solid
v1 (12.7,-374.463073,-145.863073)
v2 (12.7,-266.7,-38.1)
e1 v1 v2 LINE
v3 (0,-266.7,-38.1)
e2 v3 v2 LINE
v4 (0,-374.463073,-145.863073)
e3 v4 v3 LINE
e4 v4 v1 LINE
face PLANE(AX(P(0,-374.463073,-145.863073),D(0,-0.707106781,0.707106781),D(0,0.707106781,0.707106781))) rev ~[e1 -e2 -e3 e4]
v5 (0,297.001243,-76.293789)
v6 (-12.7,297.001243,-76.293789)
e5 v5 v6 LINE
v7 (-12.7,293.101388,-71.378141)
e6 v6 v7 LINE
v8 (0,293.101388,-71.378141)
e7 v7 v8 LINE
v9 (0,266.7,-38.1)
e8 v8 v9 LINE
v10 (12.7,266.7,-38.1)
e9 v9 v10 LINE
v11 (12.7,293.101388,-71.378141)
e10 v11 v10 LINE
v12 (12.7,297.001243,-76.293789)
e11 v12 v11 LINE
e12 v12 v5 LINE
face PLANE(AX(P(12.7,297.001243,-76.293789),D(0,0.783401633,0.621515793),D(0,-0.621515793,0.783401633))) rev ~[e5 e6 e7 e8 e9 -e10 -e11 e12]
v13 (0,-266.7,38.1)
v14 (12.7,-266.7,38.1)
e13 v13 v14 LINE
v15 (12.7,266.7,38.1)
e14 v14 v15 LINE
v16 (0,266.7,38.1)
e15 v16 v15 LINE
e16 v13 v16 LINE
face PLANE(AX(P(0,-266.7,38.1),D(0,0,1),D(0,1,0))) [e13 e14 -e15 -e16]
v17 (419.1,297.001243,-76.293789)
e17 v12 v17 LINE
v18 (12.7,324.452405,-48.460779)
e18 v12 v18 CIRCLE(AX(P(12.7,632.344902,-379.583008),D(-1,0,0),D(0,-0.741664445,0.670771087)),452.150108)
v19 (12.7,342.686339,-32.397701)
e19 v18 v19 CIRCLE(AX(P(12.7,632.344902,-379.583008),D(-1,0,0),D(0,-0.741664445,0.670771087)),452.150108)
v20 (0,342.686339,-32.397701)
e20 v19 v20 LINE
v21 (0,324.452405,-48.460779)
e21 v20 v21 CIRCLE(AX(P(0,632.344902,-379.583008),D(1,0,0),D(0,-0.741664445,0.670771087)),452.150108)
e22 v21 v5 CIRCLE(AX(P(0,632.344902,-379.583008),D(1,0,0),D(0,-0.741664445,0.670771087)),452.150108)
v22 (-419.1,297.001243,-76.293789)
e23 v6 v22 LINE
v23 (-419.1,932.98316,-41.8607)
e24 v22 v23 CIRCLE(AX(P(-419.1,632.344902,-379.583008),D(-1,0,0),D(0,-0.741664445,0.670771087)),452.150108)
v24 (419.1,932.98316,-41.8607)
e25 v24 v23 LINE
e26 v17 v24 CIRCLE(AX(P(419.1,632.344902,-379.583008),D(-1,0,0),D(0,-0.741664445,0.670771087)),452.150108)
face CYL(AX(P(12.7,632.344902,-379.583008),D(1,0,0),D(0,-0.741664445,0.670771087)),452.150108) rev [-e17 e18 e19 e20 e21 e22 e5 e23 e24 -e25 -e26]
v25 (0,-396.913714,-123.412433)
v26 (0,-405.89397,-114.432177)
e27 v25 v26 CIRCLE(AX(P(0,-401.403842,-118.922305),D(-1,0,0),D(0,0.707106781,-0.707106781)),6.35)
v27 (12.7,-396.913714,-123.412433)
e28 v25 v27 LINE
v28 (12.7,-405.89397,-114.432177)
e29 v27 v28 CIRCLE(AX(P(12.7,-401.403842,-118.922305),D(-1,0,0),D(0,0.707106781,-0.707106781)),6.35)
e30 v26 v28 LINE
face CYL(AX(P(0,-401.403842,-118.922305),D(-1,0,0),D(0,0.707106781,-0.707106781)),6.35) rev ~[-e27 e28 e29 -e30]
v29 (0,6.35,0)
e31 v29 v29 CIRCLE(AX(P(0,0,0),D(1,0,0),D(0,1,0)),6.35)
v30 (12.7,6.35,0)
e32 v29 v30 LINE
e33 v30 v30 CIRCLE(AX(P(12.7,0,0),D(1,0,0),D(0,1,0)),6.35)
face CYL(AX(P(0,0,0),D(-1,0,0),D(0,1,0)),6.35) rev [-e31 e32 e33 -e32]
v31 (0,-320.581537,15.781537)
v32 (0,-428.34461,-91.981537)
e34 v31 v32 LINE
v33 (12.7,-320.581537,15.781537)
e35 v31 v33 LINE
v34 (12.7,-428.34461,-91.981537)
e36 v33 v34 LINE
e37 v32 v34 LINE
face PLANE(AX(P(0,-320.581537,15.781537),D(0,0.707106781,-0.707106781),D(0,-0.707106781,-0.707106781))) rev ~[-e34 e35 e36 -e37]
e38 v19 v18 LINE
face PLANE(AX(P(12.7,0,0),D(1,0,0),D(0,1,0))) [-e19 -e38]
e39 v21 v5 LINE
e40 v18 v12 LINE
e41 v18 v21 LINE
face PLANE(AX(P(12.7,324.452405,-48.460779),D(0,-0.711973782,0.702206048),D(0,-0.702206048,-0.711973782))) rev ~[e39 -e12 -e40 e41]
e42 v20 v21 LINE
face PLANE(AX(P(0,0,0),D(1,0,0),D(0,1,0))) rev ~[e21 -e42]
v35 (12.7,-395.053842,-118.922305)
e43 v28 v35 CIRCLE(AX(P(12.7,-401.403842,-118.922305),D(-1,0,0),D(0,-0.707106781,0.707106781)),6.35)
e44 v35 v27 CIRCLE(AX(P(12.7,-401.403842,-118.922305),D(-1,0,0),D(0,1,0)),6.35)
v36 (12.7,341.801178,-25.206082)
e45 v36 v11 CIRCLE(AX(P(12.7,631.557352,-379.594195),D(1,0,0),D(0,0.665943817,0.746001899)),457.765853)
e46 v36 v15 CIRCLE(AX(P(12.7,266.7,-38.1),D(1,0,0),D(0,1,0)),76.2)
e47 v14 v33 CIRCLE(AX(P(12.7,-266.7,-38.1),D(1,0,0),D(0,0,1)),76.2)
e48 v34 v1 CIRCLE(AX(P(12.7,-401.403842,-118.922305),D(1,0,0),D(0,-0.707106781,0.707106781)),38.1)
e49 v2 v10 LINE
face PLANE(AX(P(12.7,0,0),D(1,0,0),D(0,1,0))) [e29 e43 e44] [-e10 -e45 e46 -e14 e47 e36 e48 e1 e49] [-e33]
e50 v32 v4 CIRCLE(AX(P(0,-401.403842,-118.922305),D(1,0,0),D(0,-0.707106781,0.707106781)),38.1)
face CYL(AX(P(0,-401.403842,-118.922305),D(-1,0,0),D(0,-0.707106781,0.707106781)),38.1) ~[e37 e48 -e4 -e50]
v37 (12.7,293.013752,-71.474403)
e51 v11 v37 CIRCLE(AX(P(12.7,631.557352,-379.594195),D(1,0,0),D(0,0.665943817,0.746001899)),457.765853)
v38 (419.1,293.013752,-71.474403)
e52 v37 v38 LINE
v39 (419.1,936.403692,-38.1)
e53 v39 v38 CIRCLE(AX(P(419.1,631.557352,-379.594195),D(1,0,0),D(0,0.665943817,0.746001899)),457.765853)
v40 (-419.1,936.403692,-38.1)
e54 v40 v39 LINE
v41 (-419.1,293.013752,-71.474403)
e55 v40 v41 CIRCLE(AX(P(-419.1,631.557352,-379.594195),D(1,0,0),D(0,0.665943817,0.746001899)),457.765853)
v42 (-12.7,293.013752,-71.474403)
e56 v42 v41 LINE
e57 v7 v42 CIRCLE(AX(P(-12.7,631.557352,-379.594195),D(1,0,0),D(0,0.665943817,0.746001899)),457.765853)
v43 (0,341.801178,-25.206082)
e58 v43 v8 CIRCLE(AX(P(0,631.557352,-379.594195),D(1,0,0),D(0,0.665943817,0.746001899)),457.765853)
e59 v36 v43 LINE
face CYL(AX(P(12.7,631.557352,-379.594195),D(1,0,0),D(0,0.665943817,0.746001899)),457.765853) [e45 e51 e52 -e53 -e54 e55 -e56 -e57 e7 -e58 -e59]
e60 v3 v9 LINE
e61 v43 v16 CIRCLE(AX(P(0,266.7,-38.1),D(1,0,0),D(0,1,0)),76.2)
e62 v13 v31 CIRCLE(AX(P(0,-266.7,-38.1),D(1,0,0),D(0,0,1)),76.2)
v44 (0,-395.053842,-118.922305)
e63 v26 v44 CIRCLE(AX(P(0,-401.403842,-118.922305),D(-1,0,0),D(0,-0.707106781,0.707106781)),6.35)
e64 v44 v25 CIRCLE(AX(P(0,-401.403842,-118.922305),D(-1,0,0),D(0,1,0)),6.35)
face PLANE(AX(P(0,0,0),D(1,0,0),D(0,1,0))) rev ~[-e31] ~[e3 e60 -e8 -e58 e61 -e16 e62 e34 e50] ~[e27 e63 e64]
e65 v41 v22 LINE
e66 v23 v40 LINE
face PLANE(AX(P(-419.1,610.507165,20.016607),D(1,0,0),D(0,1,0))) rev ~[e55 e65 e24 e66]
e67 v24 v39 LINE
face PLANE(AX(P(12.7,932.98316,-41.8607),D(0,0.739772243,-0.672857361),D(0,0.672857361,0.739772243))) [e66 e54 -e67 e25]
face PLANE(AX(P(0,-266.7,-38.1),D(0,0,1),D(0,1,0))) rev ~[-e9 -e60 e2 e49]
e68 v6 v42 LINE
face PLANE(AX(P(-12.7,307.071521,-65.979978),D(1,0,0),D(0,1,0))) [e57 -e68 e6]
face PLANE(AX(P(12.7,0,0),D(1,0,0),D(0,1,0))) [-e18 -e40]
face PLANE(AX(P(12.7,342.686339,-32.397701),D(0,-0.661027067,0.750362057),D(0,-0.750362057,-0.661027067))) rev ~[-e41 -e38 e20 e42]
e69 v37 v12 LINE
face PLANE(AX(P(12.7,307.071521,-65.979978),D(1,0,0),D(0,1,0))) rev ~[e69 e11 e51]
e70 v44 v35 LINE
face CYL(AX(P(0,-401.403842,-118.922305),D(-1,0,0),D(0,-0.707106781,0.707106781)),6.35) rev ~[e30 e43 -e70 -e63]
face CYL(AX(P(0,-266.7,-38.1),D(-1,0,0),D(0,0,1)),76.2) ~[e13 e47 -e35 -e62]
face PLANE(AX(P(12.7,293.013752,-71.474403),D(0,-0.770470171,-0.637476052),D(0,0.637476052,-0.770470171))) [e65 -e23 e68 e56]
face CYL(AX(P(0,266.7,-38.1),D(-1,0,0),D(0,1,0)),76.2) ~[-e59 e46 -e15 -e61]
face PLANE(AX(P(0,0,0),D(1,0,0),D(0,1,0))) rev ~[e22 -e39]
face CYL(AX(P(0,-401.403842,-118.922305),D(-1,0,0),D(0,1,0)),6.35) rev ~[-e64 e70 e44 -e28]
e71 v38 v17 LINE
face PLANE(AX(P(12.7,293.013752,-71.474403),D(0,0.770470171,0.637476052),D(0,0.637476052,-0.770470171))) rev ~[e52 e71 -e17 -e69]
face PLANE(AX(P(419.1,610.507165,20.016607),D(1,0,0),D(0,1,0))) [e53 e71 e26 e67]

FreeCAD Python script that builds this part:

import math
import FreeCAD as App
import Part
import Sketcher

V = App.Vector
Q = App.Units.Quantity


def add_polygon(sketch, points):
    """Adds a closed chain of lines whose ends are joined by coincident constraints."""
    first, n = sketch.GeometryCount, len(points)
    for a, b in zip(points, points[1:] + points[:1]):
        sketch.addGeometry(Part.LineSegment(App.Vector(*a, 0), App.Vector(*b, 0)), False)
    for i in range(n):
        sketch.addConstraint(Sketcher.Constraint("Coincident", first + i, 2, first + (i + 1) % n, 1))

doc = App.newDocument("Part")
params = doc.addObject("Spreadsheet::Sheet", "Params")
for row, (alias, value) in enumerate([
    ("sketch1_radius", "3 in"),
    ("sketch1_diameter", "0.5 in"),
    ("sketch1_width", "21 in"),
    ("sketch1_height", "2 in"),
    ("sketch1_length", "6 in"),
    ("pad1_length", "0.5 in"),
    ("pad2_length", "16 in"),
    ("pad2_length2", "17 in"),
    ("sketch3_width", "3 in"),
    ("sketch3_height", "2 in"),
    ("pocket1_length", "1 in"),
], start=1):
    params.set(f"A{row}", alias)
    params.set(f"B{row}", "=" + value)
    params.setAlias(f"B{row}", alias)

body = doc.addObject("PartDesign::Body", "Body")

# Sketch on YZ plane
sketch1 = body.newObject("Sketcher::SketchObject", "Sketch")
sketch1.AttachmentSupport = (doc.getObject("YZ_Plane"), [""])
sketch1.MapMode = "FlatFace"
sketch1.addGeometry([
    Part.LineSegment(V(-266.7, -38.1, 0), V(266.7, -38.1, 0)),  # 0
    Part.LineSegment(V(266.7, -38.1, 0), V(266.7, -88.9, 0)),  # 1
    Part.LineSegment(V(266.7, -88.9, 0), V(342.9, -88.9, 0)),  # 2
    Part.LineSegment(V(342.9, -88.9, 0), V(342.9, -38.1, 0)),  # 3
    Part.ArcOfCircle(Part.Circle(V(266.7, -38.1, 0), V(0, 0, 1), 76.2), math.radians(0), math.radians(90)),  # 4
    Part.LineSegment(V(266.7, 38.1, 0), V(-266.7, 38.1, 0)),  # 5
    Part.ArcOfCircle(Part.Circle(V(-266.7, -38.1, 0), V(0, 0, 1), 76.2), math.radians(90), math.radians(135)),  # 6
    Part.LineSegment(V(-320.6, 15.8, 0), V(-428.3, -92, 0)),  # 7
    Part.ArcOfCircle(Part.Circle(V(-401.4, -118.9, 0), V(0, 0, 1), 38.1), math.radians(135), math.radians(315)),  # 8
    Part.LineSegment(V(-374.5, -145.9, 0), V(-266.7, -38.1, 0)),  # 9
    Part.ArcOfCircle(Part.Circle(V(-401.4, -118.9, 0), V(0, 0, 1), 6.3), math.radians(0), math.radians(135)),  # 10
    Part.ArcOfCircle(Part.Circle(V(-401.4, -118.9, 0), V(0, 0, 1), 6.4), math.radians(-45), math.radians(0)),  # 11
    Part.ArcOfCircle(Part.Circle(V(-401.4, -118.9, 0), V(0, 0, 1), 6.3), math.radians(135), math.radians(315)),  # 12
    Part.Circle(V(0, 0, 0), V(0, 0, 1), 6.3),  # 13
], False)
sketch1.addConstraint([
    Sketcher.Constraint("Coincident", 0, 2, 1, 1),
    Sketcher.Constraint("Coincident", 1, 2, 2, 1),
    Sketcher.Constraint("Coincident", 2, 2, 3, 1),
    Sketcher.Constraint("Tangent", 3, 2, 4, 1),
    Sketcher.Constraint("Tangent", 4, 2, 5, 1),
    Sketcher.Constraint("Tangent", 5, 2, 6, 1),
    Sketcher.Constraint("Tangent", 6, 2, 7, 1),
    Sketcher.Constraint("Tangent", 7, 2, 8, 1),
    Sketcher.Constraint("Tangent", 8, 2, 9, 1),
    Sketcher.Constraint("Coincident", 9, 2, 0, 1),
    Sketcher.Constraint("Tangent", 10, 1, 11, 2),
    Sketcher.Constraint("Tangent", 11, 1, 12, 2),
    Sketcher.Constraint("Tangent", 12, 1, 10, 2),
    Sketcher.Constraint("Horizontal", 0),
    Sketcher.Constraint("Vertical", 1),
    Sketcher.Constraint("Horizontal", 2),
    Sketcher.Constraint("Vertical", 3),
    Sketcher.Constraint("Horizontal", 5),
    Sketcher.Constraint("Coincident", 13, 3, -1, 1),
    Sketcher.Constraint("Coincident", 10, 3, 8, 3),
    Sketcher.Constraint("Coincident", 0, 2, 4, 3),
    Sketcher.Constraint("Coincident", 9, 2, 6, 3),
    Sketcher.Constraint("Equal", 12, 13),
    Sketcher.Constraint("Symmetric", 0, 2, 5, 2, -1, 1),
    Sketcher.Constraint("Parallel", 7, 9),
    Sketcher.Constraint("Horizontal", 12, 3, 10, 1),
    Sketcher.Constraint("Radius", 4, Q("3 in")),
    Sketcher.Constraint("Diameter", 13, Q("0.5 in")),
    Sketcher.Constraint("DistanceX", 0, 1, 0, 2, Q("21 in")),
    Sketcher.Constraint("DistanceY", 1, 2, 1, 1, Q("2 in")),
    Sketcher.Constraint("Distance", 7, Q("6 in")),
    Sketcher.Constraint("Angle", 7, Q("-135 deg")),
    Sketcher.Constraint("DistanceX", 12, 1, -1, 1, 405.89397),
    Sketcher.Constraint("DistanceX", 11, 1, 10, 1, 1.859872),
])
sketch1.setExpression("Constraints[26]", "Params.sketch1_radius")
sketch1.setExpression("Constraints[27]", "Params.sketch1_diameter")
sketch1.setExpression("Constraints[28]", "Params.sketch1_width")
sketch1.setExpression("Constraints[29]", "Params.sketch1_height")
sketch1.setExpression("Constraints[30]", "Params.sketch1_length")
pad1 = body.newObject("PartDesign::Pad", "Pad")
pad1.Profile = sketch1
pad1.setExpression("Length", "Params.pad1_length")

# Sketch on YZ plane
sketch2 = body.newObject("Sketcher::SketchObject", "Sketch001")
sketch2.AttachmentSupport = (doc.getObject("YZ_Plane"), [""])
sketch2.MapMode = "FlatFace"
sketch2.AttachmentOffset = App.Placement(V(0, 0, 0.5 * 25.4), App.Rotation())
sketch2.addGeometry([
    Part.LineSegment(V(933, -42, 0), V(936, -38, 0)),
    Part.ArcOfCircle(Part.Circle(V(632, -380, 0), V(0, 0, 1), 458), math.radians(48), math.radians(138)),
    Part.LineSegment(V(293, -71, 0), V(297, -76, 0)),
    Part.ArcOfCircle(Part.Circle(V(632, -380, 0), V(0, 0, 1), 452), math.radians(48), math.radians(138)),
], False)
sketch2.addConstraint([
    Sketcher.Constraint("Coincident", 0, 2, 1, 1),
    Sketcher.Constraint("Coincident", 1, 2, 2, 1),
    Sketcher.Constraint("Coincident", 2, 2, 3, 2),
    Sketcher.Constraint("Coincident", 3, 1, 0, 1),
    Sketcher.Constraint("DistanceY", 0, 2, -1, 1, Q("1.5 in")),
    Sketcher.Constraint("Radius", 3, 452.150108),
    Sketcher.Constraint("Radius", 1, 457.765853),
    Sketcher.Constraint("DistanceX", -1, 1, 3, 3, 632.344902),
    Sketcher.Constraint("DistanceY", 3, 1, -1, 1, 41.8607),
    Sketcher.Constraint("DistanceX", 1, 2, 1, 3, 338.543601),
    Sketcher.Constraint("Distance", 0, 5.083591),
    Sketcher.Constraint("DistanceY", 3, 3, -1, 1, 379.583008),
    Sketcher.Constraint("DistanceY", 2, 2, -1, 1, 76.293789),
    Sketcher.Constraint("DistanceX", 1, 3, 3, 3, 0.787549),
])
pad2 = body.newObject("PartDesign::Pad", "Pad001")
pad2.Profile = sketch2
pad2.Type = "TwoLengths"
pad2.setExpression("Length", "Params.pad2_length")
pad2.setExpression("Length2", "Params.pad2_length2")

# Sketch on YZ plane
sketch3 = body.newObject("Sketcher::SketchObject", "Sketch002")
sketch3.AttachmentSupport = (doc.getObject("YZ_Plane"), [""])
sketch3.MapMode = "FlatFace"
sketch3.AttachmentOffset = App.Placement(V(0, 0, 0.5 * 25.4), App.Rotation())
add_polygon(sketch3, [(266.7, -88.9), (342.9, -88.9), (347.1, -88.8), (347.1, -30.7), (342.7, -32.4), (324.5, -48.5), (297, -76.3), (266.7, -38.1)])  # lines 0-7
sketch3.addConstraint([
    Sketcher.Constraint("Horizontal", 0),
    Sketcher.Constraint("Vertical", 2),
    Sketcher.Constraint("Vertical", 7),
    Sketcher.Constraint("DistanceX", 0, 1, 0, 2, Q("3 in")),
    Sketcher.Constraint("DistanceY", 7, 2, 7, 1, Q("2 in")),
    Sketcher.Constraint("DistanceX", -1, 1, 0, 2, Q("13.5 in")),
    Sketcher.Constraint("DistanceY", 0, 2, -1, 1, Q("3.5 in")),
    Sketcher.Constraint("Distance", 4, Q("0.9567001 in")),
    Sketcher.Constraint("DistanceY", 3, 2, -1, 1, Q("1.2755 in")),
    Sketcher.Constraint("DistanceY", 2, 1, 2, 2, 58.081279),
    Sketcher.Constraint("DistanceY", 5, 2, 2, 2, 45.609901),
    Sketcher.Constraint("DistanceY", 2, 2, -1, 1, 30.683888),
    Sketcher.Constraint("DistanceX", -1, 1, 3, 2, 342.686339),
    Sketcher.Constraint("DistanceY", 4, 2, -1, 1, 48.460779),
    Sketcher.Constraint("DistanceX", 4, 2, 2, 2, 22.672768),
    Sketcher.Constraint("DistanceX", 5, 2, 4, 2, 27.451162),
])
sketch3.setExpression("Constraints[11]", "Params.sketch3_width")
sketch3.setExpression("Constraints[12]", "Params.sketch3_height")
pocket1 = body.newObject("PartDesign::Pocket", "Pocket")
pocket1.Profile = sketch3
pocket1.setExpression("Length", "Params.pocket1_length")

doc.recompute()
